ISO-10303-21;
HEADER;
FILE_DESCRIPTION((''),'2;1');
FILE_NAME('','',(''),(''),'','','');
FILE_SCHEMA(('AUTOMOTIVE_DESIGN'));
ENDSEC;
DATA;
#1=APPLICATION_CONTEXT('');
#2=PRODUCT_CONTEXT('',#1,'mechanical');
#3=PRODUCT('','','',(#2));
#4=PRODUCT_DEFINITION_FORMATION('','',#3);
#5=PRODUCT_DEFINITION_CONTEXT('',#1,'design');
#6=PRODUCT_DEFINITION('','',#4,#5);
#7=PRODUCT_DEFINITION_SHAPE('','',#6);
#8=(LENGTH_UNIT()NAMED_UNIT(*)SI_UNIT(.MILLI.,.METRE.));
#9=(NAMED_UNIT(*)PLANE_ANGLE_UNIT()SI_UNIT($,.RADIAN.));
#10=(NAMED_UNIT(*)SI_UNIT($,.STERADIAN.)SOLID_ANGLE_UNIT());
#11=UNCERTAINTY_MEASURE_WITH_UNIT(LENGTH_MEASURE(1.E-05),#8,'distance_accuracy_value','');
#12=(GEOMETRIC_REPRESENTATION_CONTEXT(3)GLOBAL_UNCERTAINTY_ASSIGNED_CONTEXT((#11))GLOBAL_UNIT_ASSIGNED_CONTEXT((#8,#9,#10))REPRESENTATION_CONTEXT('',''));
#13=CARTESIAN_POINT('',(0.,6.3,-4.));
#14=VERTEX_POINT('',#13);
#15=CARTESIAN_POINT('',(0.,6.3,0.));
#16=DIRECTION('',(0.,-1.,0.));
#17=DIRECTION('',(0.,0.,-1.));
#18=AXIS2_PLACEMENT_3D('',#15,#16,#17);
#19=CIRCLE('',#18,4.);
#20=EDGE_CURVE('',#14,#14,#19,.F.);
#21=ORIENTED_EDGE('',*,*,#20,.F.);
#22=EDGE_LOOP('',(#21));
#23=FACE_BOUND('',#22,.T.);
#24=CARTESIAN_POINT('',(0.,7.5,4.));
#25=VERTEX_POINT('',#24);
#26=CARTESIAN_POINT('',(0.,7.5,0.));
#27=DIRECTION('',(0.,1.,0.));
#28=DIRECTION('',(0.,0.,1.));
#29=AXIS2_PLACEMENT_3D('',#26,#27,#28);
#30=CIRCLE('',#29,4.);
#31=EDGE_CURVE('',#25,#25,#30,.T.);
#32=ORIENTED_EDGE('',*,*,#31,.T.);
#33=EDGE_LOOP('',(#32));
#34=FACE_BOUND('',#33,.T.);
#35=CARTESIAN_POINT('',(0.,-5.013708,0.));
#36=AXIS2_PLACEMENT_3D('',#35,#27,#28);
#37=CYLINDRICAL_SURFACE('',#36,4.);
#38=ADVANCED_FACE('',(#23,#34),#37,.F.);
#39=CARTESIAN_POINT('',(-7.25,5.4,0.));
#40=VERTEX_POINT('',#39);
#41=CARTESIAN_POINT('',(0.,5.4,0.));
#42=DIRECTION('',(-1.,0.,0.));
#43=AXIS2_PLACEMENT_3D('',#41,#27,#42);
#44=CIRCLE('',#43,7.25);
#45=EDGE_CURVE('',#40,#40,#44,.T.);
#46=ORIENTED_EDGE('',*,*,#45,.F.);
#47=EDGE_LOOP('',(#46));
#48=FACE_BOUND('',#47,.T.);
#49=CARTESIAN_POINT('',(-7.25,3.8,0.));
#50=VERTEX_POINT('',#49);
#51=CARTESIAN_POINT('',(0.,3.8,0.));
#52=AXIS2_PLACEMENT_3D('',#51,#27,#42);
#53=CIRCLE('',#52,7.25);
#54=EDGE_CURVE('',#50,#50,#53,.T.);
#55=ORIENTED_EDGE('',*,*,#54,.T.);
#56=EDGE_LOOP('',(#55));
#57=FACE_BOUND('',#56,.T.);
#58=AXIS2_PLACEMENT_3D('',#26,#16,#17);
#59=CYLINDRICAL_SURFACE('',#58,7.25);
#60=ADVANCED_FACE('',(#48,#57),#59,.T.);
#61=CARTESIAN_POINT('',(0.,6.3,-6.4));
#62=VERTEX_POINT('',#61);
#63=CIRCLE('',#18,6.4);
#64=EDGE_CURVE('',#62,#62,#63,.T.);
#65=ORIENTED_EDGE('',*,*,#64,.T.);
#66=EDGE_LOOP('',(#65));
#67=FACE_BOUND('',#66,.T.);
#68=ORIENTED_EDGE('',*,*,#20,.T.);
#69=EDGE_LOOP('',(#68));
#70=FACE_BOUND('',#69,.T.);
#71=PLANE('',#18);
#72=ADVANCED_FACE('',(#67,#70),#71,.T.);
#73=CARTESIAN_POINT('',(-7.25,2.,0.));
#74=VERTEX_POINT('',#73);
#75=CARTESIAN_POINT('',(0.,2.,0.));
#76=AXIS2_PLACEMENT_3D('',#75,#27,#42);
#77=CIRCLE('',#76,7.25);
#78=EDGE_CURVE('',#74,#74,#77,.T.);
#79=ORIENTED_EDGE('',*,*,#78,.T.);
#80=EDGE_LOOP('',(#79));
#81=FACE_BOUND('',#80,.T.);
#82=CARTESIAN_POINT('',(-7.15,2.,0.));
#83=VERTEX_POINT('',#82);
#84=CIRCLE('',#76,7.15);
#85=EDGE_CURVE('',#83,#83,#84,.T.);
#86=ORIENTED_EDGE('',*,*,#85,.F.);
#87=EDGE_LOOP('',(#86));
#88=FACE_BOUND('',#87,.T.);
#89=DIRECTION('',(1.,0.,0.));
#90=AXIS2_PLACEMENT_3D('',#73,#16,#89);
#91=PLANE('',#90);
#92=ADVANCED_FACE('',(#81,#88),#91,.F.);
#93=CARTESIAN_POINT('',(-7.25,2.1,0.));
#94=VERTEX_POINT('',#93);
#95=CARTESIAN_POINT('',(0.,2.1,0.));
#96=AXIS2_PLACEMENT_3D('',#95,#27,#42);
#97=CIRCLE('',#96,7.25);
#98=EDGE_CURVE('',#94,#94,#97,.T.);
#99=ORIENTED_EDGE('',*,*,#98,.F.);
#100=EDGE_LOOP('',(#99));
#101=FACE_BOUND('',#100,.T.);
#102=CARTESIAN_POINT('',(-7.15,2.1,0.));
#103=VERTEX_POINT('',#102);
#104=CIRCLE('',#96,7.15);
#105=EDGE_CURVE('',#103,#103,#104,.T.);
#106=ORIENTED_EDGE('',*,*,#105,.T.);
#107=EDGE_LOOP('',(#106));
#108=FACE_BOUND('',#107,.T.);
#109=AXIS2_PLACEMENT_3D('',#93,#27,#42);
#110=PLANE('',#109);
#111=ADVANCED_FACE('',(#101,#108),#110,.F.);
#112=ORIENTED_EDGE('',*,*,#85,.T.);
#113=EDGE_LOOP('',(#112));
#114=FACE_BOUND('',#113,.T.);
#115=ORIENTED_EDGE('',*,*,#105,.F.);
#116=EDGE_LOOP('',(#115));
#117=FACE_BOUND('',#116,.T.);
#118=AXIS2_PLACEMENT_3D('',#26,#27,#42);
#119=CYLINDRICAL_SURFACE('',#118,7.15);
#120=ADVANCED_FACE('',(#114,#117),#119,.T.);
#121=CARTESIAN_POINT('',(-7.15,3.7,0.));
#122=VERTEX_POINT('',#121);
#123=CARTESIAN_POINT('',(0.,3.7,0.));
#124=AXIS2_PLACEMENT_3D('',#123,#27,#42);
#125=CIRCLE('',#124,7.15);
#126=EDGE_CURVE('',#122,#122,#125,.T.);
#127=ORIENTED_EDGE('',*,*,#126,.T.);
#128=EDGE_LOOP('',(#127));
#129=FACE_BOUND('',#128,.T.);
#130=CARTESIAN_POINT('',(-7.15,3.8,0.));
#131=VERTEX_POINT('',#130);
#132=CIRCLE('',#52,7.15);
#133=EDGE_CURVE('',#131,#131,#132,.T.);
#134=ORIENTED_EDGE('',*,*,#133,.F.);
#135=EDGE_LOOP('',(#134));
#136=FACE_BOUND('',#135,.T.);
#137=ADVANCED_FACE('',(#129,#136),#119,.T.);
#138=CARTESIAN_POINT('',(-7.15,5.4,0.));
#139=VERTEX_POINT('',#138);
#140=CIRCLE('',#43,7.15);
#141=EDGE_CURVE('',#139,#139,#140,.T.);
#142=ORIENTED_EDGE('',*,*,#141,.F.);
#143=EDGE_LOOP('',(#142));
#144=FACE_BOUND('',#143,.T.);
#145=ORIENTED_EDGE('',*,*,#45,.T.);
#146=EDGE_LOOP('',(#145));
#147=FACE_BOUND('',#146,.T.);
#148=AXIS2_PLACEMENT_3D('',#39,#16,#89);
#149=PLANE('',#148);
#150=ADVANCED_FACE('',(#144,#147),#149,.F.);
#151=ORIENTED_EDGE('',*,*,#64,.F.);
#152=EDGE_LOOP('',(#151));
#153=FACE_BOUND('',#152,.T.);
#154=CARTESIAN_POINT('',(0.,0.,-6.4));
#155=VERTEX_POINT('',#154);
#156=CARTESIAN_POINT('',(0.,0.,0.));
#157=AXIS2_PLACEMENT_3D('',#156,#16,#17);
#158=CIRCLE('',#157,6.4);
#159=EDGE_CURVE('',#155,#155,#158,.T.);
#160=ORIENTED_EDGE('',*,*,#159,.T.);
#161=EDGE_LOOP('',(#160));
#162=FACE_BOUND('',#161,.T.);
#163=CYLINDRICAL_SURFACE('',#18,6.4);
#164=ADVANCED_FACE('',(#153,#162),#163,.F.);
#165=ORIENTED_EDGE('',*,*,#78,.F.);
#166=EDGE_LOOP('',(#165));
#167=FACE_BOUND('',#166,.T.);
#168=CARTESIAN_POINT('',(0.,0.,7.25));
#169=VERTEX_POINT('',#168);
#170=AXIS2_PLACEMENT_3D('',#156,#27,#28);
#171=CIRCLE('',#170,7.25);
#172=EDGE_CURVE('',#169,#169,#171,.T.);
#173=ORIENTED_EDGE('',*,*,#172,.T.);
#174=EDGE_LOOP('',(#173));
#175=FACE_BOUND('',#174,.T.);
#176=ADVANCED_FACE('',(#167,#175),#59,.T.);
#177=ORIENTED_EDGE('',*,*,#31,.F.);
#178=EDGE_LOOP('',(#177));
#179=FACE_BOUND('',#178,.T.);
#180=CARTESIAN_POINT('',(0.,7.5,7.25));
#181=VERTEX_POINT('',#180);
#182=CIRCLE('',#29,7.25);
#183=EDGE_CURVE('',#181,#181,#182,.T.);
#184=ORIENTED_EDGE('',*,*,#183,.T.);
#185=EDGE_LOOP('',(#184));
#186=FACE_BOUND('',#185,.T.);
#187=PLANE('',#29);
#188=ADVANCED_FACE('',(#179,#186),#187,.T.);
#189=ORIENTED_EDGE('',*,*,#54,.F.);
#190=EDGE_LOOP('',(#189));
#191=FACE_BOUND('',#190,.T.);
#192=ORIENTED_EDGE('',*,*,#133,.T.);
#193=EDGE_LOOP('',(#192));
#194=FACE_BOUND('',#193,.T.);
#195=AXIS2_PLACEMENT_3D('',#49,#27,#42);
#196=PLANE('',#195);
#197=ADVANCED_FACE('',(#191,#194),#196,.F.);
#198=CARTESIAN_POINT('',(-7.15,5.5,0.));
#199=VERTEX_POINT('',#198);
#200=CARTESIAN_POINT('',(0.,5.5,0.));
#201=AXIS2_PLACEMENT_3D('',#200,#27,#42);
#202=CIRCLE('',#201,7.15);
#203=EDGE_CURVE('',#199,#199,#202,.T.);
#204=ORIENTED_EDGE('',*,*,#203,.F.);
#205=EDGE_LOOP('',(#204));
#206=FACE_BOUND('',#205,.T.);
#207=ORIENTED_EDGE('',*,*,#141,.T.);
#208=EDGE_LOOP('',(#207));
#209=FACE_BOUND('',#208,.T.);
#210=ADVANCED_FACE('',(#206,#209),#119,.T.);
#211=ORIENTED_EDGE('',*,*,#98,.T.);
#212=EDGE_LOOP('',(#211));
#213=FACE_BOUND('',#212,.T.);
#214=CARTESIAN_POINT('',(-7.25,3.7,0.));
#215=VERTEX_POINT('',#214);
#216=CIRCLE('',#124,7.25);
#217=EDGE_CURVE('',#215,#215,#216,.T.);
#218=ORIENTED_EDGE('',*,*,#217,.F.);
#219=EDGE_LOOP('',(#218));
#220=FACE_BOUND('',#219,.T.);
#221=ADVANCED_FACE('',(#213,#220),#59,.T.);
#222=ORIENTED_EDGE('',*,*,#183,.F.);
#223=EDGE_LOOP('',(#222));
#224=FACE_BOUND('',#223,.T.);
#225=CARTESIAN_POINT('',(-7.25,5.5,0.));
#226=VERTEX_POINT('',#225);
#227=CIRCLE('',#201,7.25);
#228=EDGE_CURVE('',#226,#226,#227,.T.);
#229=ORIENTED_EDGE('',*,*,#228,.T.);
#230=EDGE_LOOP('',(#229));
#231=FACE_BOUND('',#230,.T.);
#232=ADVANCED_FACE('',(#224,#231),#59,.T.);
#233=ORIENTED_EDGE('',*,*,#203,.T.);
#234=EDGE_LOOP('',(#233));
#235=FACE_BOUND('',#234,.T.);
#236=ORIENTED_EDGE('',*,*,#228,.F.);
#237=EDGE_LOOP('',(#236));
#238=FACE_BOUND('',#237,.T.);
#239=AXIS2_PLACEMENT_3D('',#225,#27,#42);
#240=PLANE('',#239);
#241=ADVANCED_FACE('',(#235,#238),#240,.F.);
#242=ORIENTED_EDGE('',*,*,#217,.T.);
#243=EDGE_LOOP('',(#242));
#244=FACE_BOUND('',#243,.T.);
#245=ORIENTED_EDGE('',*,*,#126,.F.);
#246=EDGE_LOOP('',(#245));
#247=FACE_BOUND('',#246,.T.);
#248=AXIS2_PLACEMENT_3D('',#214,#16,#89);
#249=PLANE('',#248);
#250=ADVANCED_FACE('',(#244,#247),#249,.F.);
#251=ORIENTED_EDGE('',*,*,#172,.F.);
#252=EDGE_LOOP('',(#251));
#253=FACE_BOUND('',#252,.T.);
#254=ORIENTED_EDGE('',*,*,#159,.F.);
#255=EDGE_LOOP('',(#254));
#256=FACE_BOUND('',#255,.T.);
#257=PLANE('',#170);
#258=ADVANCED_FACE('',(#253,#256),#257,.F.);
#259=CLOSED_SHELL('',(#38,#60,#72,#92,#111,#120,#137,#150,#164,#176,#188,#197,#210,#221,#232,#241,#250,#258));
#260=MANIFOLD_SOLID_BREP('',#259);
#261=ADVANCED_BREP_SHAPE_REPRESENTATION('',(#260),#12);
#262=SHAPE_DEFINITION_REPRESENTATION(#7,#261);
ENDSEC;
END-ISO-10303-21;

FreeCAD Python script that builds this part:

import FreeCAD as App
import Part
import Sketcher

V = App.Vector
Q = App.Units.Quantity


def add_polygon(sketch, points):
    """Adds a closed chain of lines whose ends are joined by coincident constraints."""
    first, n = sketch.GeometryCount, len(points)
    for a, b in zip(points, points[1:] + points[:1]):
        sketch.addGeometry(Part.LineSegment(App.Vector(*a, 0), App.Vector(*b, 0)), False)
    for i in range(n):
        sketch.addConstraint(Sketcher.Constraint("Coincident", first + i, 2, first + (i + 1) % n, 1))

doc = App.newDocument("Part")
body = doc.addObject("PartDesign::Body", "Body")

# Sketch on XZ plane
sketch1 = body.newObject("Sketcher::SketchObject", "Sketch")
sketch1.AttachmentSupport = (doc.getObject("XZ_Plane"), [""])
sketch1.MapMode = "FlatFace"
sketch1.addGeometry(Part.Circle(V(0, 0, 0), V(0, 0, 1), 7.25), False)
sketch1.addConstraint([
    Sketcher.Constraint("Coincident", 0, 3, -1, 1),
    Sketcher.Constraint("Diameter", 0, Q("14.5 mm")),
])
pad1 = body.newObject("PartDesign::Pad", "Pad")
pad1.Profile = sketch1
pad1.Length = 7.5
pad1.Reversed = True

# Sketch on XZ plane
sketch2 = body.newObject("Sketcher::SketchObject", "Sketch001")
sketch2.AttachmentSupport = (doc.getObject("XZ_Plane"), [""])
sketch2.MapMode = "FlatFace"
sketch2.addGeometry(Part.Circle(V(0, 0, 0), V(0, 0, 1), 6.4), False)
sketch2.addConstraint([
    Sketcher.Constraint("Coincident", 0, 3, -1, 1),
    Sketcher.Constraint("Diameter", 0, Q("12.8 mm")),
])
pocket1 = body.newObject("PartDesign::Pocket", "Pocket")
pocket1.Profile = sketch2
pocket1.Length = 6.3

# Sketch on XZ plane
sketch3 = body.newObject("Sketcher::SketchObject", "Sketch002")
sketch3.AttachmentSupport = (doc.getObject("XZ_Plane"), [""])
sketch3.MapMode = "FlatFace"
sketch3.AttachmentOffset = App.Placement(V(0, 0, -7.5), App.Rotation())
sketch3.addGeometry(Part.Circle(V(0, 0, 0), V(0, 0, 1), 4), False)
sketch3.addConstraint([
    Sketcher.Constraint("Coincident", 0, 3, -1, 1),
    Sketcher.Constraint("Diameter", 0, Q("8 mm")),
])
pocket2 = body.newObject("PartDesign::Pocket", "Pocket001")
pocket2.Profile = sketch3
pocket2.Length = 1.2
pocket2.Reversed = True

# Sketch on XY plane
sketch4 = body.newObject("Sketcher::SketchObject", "Sketch003")
sketch4.AttachmentSupport = (doc.getObject("XY_Plane"), [""])
sketch4.MapMode = "FlatFace"
add_polygon(sketch4, [(-7.25, 5.5), (-7.25, 5.4), (-7.15, 5.4), (-7.15, 5.5)])  # lines 0-3
add_polygon(sketch4, [(-7.25, 3.8), (-7.25, 3.7), (-7.15, 3.7), (-7.15, 3.8)])  # lines 4-7
add_polygon(sketch4, [(-7.25, 2.1), (-7.25, 2), (-7.15, 2), (-7.15, 2.1)])  # lines 8-11
sketch4.addConstraint([
    Sketcher.Constraint("Vertical", 0),
    Sketcher.Constraint("Horizontal", 1),
    Sketcher.Constraint("Vertical", 2),
    Sketcher.Constraint("Horizontal", 3),
    Sketcher.Constraint("Vertical", 4),
    Sketcher.Constraint("Horizontal", 5),
    Sketcher.Constraint("Vertical", 6),
    Sketcher.Constraint("Horizontal", 7),
    Sketcher.Constraint("Vertical", 8),
    Sketcher.Constraint("Horizontal", 9),
    Sketcher.Constraint("Vertical", 10),
    Sketcher.Constraint("Horizontal", 11),
    Sketcher.Constraint("Vertical", 3, 2, 4, 2),
    Sketcher.Constraint("Vertical", 2, 2, 5, 2),
    Sketcher.Constraint("Vertical", 7, 2, 8, 2),
    Sketcher.Constraint("Vertical", 6, 2, 9, 2),
    Sketcher.Constraint("Equal", 11, 0),
    Sketcher.Constraint("Equal", 2, 4),
    Sketcher.Constraint("Equal", 6, 8),
    Sketcher.Constraint("DistanceX", 1, 1, 1, 2, Q("0.1 mm")),
    Sketcher.Constraint("DistanceY", -1, 1, 8, 2, Q("2 mm")),
    Sketcher.Constraint("DistanceY", -1, 1, 0, 2, Q("5.4 mm")),
    Sketcher.Constraint("DistanceY", -1, 1, 4, 2, Q("3.7 mm")),
    Sketcher.Constraint("DistanceX", 0, 2, -1, 1, Q("7.25 mm")),
])
groove = body.newObject("PartDesign::Groove", "Groove")
groove.Profile = sketch4
groove.ReferenceAxis = (sketch4, ["V_Axis"])
groove.Angle = 360

doc.recompute()
